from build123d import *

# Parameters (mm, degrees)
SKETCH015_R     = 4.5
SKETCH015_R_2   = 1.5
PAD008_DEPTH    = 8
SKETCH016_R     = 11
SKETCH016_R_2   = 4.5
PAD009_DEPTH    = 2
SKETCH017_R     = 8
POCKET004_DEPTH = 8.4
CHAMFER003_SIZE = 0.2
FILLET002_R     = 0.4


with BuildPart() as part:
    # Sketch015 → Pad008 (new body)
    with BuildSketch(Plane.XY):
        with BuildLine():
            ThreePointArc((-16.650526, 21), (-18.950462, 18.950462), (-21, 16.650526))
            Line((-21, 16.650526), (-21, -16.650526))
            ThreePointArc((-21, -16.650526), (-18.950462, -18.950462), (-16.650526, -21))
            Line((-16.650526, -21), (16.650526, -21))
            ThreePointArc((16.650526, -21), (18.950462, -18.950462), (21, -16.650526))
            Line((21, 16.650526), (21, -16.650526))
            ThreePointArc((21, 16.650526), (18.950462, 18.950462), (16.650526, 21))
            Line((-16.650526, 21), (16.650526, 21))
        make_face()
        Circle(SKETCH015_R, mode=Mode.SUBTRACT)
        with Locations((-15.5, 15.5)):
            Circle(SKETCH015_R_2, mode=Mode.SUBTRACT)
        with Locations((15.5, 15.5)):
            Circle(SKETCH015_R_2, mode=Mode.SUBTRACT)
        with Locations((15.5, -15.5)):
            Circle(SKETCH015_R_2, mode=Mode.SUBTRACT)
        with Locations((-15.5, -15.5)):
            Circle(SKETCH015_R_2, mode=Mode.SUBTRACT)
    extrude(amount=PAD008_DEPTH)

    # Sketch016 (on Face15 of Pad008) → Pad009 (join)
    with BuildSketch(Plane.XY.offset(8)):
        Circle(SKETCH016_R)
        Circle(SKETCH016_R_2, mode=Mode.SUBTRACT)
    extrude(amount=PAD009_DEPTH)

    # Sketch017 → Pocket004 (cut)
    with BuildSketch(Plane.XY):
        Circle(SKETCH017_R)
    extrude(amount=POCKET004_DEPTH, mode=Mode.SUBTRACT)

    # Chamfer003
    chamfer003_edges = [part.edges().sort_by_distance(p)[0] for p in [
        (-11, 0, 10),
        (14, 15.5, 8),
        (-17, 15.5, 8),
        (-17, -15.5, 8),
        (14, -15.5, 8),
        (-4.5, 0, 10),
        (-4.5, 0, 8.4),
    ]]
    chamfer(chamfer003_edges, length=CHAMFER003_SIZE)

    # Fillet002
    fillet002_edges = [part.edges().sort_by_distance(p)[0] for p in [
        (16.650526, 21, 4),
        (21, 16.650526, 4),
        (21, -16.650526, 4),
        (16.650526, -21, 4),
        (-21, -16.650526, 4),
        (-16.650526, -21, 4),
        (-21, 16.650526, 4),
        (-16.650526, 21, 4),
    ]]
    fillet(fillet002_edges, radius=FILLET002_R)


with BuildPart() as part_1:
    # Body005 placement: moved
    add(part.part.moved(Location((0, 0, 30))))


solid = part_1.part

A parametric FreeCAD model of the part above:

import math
import FreeCAD as App
import Part
import Sketcher
Q = App.Units.Quantity


def edges_at(feature, points):
    """Names of the edges that pass closest to the given points."""
    edges = feature.Shape.Edges
    near = lambda p: min(range(len(edges)), key=lambda i: edges[i].distToShape(Part.Vertex(*p))[0])
    return sorted({f"Edge{near(p) + 1}" for p in points})

doc = App.newDocument("Part")
body = doc.addObject("PartDesign::Body", "Body")

# Sketch on XY plane
sketch1 = doc.addObject("Sketcher::SketchObject", "Sketch")
body.addObject(sketch1)
sketch1.AttachmentSupport = (doc.XY_Plane, [""])
sketch1.MapMode = "FlatFace"
sketch1.addGeometry([
    Part.ArcOfCircle(Part.Circle(App.Vector(-0.000008, 0.000008, 0), App.Vector(0, 0, 1), 26.799989), math.radians(128.41027), math.radians(141.58973)),  # 0
    Part.LineSegment(App.Vector(-21, 16.650526, 0), App.Vector(-21, -16.650526, 0)),  # 1
    Part.ArcOfCircle(Part.Circle(App.Vector(-0.000008, -0.000008, 0), App.Vector(0, 0, 1), 26.799989), math.radians(-141.58973), math.radians(-128.41027)),  # 2
    Part.LineSegment(App.Vector(-16.650526, -21, 0), App.Vector(16.650526, -21, 0)),  # 3
    Part.ArcOfCircle(Part.Circle(App.Vector(0.000008, -0.000008, 0), App.Vector(0, 0, 1), 26.799989), math.radians(-51.58973), math.radians(-38.41027)),  # 4
    Part.LineSegment(App.Vector(21, -16.650526, 0), App.Vector(21, 16.650526, 0)),  # 5
    Part.ArcOfCircle(Part.Circle(App.Vector(0.000008, 0.000008, 0), App.Vector(0, 0, 1), 26.799989), math.radians(38.41027), math.radians(51.58973)),  # 6
    Part.LineSegment(App.Vector(16.650526, 21, 0), App.Vector(-16.650526, 21, 0)),  # 7
    Part.Circle(App.Vector(-15.5, -15.5, 0), App.Vector(0, 0, 1), 1.5),  # 8
    Part.Circle(App.Vector(15.5, -15.5, 0), App.Vector(0, 0, 1), 1.5),  # 9
    Part.Circle(App.Vector(-15.5, 15.5, 0), App.Vector(0, 0, 1), 1.5),  # 10
    Part.Circle(App.Vector(0, 0, 0), App.Vector(0, 0, 1), 4.5),  # 11
    Part.Circle(App.Vector(15.5, 15.5, 0), App.Vector(0, 0, 1), 1.5),  # 12
], False)
sketch1.addConstraint([
    Sketcher.Constraint("Coincident", 0, 2, 1, 1),
    Sketcher.Constraint("Coincident", 1, 2, 2, 1),
    Sketcher.Constraint("Coincident", 2, 2, 3, 1),
    Sketcher.Constraint("Coincident", 3, 2, 4, 1),
    Sketcher.Constraint("Coincident", 4, 2, 5, 1),
    Sketcher.Constraint("Coincident", 5, 2, 6, 1),
    Sketcher.Constraint("Coincident", 6, 2, 7, 1),
    Sketcher.Constraint("Coincident", 7, 2, 0, 1),
    Sketcher.Constraint("Vertical", 1),
    Sketcher.Constraint("Horizontal", 3),
    Sketcher.Constraint("Vertical", 5),
    Sketcher.Constraint("Horizontal", 7),
    Sketcher.Constraint("Coincident", 11, 3, -1, 1),
    Sketcher.Constraint("Equal", 0, 2),
    Sketcher.Constraint("Equal", 2, 4),
    Sketcher.Constraint("Equal", 4, 6),
    Sketcher.Constraint("Equal", 8, 9),
    Sketcher.Constraint("Equal", 9, 10),
    Sketcher.Constraint("Equal", 10, 12),
    Sketcher.Constraint("Symmetric", 0, 3, 4, 3, -1, 1),
    Sketcher.Constraint("Symmetric", 2, 3, 6, 3, -1, 1),
    Sketcher.Constraint("Symmetric", 9, 3, 10, 3, -1, 1),
    Sketcher.Constraint("Symmetric", 8, 3, 12, 3, -1, 1),
    Sketcher.Constraint("Symmetric", 2, 3, 4, 3, -2),
    Sketcher.Constraint("Symmetric", 8, 3, 9, 3, -2),
    Sketcher.Constraint("Horizontal", 1, 2, 4, 2),
    Sketcher.Constraint("Vertical", 3, 2, 6, 2),
    Sketcher.Constraint("Equal", 7, 1),
    Sketcher.Constraint("Diameter", 8, Q("3 mm")),
    Sketcher.Constraint("Diameter", 11, Q("9 mm")),
    Sketcher.Constraint("DistanceX", 0, 2, -1, 1, Q("21 mm")),
    Sketcher.Constraint("DistanceY", 2, 2, -1, 1, Q("21 mm")),
    Sketcher.Constraint("DistanceX", 8, 3, 9, 3, Q("31 mm")),
    Sketcher.Constraint("DistanceY", 8, 3, 10, 3, Q("31 mm")),
    Sketcher.Constraint("Radius", 0, Q("26.799989 mm")),
    Sketcher.Constraint("DistanceX", 3, 1, 3, 2, Q("33.301052 mm")),
])
pad1 = doc.addObject("PartDesign::Pad", "Pad")
body.addObject(pad1)
pad1.Profile = sketch1
pad1.Length = 8

# Sketch on XY plane
sketch2 = doc.addObject("Sketcher::SketchObject", "Sketch001")
body.addObject(sketch2)
sketch2.AttachmentSupport = (doc.XY_Plane, [""])
sketch2.MapMode = "FlatFace"
sketch2.AttachmentOffset = App.Placement(App.Vector(0, 0, 8), App.Rotation())
sketch2.addGeometry([
    Part.Circle(App.Vector(0, 0, 0), App.Vector(0, 0, 1), 11),
    Part.Circle(App.Vector(0, 0, 0), App.Vector(0, 0, 1), 4.5),
], False)
sketch2.addConstraint([
    Sketcher.Constraint("Coincident", 0, 3, -1, 1),
    Sketcher.Constraint("Coincident", 1, 3, -1, 1),
    Sketcher.Constraint("Diameter", 0, Q("22 mm")),
    Sketcher.Constraint("Diameter", 1, Q("9 mm")),
])
pad2 = doc.addObject("PartDesign::Pad", "Pad001")
body.addObject(pad2)
pad2.Profile = sketch2
pad2.Length = 2

# Sketch on XY plane
sketch3 = doc.addObject("Sketcher::SketchObject", "Sketch002")
body.addObject(sketch3)
sketch3.AttachmentSupport = (doc.XY_Plane, [""])
sketch3.MapMode = "FlatFace"
sketch3.addGeometry(Part.Circle(App.Vector(0, 0, 0), App.Vector(0, 0, 1), 8), False)
sketch3.addConstraint([
    Sketcher.Constraint("Coincident", 0, 3, -1, 1),
    Sketcher.Constraint("Diameter", 0, Q("16 mm")),
])
pocket1 = doc.addObject("PartDesign::Pocket", "Pocket")
body.addObject(pocket1)
pocket1.Profile = sketch3
pocket1.Length = 8.4
pocket1.Reversed = True
doc.recompute()

chamfer = doc.addObject("PartDesign::Chamfer", "Chamfer")
body.addObject(chamfer)
chamfer.Base = (pocket1, edges_at(pocket1, [
    (-11, 0, 10),
    (14, 15.5, 8),
    (-17, 15.5, 8),
    (-17, -15.5, 8),
    (14, -15.5, 8),
    (-4.5, 0, 10),
    (-4.5, 0, 8.4),
]))
chamfer.Size = 0.2
doc.recompute()

fillet = doc.addObject("PartDesign::Fillet", "Fillet")
body.addObject(fillet)
fillet.Base = (chamfer, edges_at(chamfer, [
    (16.651, 21, 4),
    (21, 16.651, 4),
    (21, -16.651, 4),
    (16.651, -21, 4),
    (-21, -16.651, 4),
    (-16.651, -21, 4),
    (-21, 16.651, 4),
    (-16.651, 21, 4),
]))
fillet.Radius = 0.4
body2 = doc.addObject("PartDesign::Body", "Body001")
doc.recompute()

body.Placement = App.Placement(App.Vector(0, 0, 30), App.Rotation(App.Vector(0, 0, 1), 0))
boolean = doc.addObject("PartDesign::Boolean", "Boolean")
body2.addObject(boolean)
boolean.Type = "Fuse"
boolean.addObjects([body])

doc.recompute()
